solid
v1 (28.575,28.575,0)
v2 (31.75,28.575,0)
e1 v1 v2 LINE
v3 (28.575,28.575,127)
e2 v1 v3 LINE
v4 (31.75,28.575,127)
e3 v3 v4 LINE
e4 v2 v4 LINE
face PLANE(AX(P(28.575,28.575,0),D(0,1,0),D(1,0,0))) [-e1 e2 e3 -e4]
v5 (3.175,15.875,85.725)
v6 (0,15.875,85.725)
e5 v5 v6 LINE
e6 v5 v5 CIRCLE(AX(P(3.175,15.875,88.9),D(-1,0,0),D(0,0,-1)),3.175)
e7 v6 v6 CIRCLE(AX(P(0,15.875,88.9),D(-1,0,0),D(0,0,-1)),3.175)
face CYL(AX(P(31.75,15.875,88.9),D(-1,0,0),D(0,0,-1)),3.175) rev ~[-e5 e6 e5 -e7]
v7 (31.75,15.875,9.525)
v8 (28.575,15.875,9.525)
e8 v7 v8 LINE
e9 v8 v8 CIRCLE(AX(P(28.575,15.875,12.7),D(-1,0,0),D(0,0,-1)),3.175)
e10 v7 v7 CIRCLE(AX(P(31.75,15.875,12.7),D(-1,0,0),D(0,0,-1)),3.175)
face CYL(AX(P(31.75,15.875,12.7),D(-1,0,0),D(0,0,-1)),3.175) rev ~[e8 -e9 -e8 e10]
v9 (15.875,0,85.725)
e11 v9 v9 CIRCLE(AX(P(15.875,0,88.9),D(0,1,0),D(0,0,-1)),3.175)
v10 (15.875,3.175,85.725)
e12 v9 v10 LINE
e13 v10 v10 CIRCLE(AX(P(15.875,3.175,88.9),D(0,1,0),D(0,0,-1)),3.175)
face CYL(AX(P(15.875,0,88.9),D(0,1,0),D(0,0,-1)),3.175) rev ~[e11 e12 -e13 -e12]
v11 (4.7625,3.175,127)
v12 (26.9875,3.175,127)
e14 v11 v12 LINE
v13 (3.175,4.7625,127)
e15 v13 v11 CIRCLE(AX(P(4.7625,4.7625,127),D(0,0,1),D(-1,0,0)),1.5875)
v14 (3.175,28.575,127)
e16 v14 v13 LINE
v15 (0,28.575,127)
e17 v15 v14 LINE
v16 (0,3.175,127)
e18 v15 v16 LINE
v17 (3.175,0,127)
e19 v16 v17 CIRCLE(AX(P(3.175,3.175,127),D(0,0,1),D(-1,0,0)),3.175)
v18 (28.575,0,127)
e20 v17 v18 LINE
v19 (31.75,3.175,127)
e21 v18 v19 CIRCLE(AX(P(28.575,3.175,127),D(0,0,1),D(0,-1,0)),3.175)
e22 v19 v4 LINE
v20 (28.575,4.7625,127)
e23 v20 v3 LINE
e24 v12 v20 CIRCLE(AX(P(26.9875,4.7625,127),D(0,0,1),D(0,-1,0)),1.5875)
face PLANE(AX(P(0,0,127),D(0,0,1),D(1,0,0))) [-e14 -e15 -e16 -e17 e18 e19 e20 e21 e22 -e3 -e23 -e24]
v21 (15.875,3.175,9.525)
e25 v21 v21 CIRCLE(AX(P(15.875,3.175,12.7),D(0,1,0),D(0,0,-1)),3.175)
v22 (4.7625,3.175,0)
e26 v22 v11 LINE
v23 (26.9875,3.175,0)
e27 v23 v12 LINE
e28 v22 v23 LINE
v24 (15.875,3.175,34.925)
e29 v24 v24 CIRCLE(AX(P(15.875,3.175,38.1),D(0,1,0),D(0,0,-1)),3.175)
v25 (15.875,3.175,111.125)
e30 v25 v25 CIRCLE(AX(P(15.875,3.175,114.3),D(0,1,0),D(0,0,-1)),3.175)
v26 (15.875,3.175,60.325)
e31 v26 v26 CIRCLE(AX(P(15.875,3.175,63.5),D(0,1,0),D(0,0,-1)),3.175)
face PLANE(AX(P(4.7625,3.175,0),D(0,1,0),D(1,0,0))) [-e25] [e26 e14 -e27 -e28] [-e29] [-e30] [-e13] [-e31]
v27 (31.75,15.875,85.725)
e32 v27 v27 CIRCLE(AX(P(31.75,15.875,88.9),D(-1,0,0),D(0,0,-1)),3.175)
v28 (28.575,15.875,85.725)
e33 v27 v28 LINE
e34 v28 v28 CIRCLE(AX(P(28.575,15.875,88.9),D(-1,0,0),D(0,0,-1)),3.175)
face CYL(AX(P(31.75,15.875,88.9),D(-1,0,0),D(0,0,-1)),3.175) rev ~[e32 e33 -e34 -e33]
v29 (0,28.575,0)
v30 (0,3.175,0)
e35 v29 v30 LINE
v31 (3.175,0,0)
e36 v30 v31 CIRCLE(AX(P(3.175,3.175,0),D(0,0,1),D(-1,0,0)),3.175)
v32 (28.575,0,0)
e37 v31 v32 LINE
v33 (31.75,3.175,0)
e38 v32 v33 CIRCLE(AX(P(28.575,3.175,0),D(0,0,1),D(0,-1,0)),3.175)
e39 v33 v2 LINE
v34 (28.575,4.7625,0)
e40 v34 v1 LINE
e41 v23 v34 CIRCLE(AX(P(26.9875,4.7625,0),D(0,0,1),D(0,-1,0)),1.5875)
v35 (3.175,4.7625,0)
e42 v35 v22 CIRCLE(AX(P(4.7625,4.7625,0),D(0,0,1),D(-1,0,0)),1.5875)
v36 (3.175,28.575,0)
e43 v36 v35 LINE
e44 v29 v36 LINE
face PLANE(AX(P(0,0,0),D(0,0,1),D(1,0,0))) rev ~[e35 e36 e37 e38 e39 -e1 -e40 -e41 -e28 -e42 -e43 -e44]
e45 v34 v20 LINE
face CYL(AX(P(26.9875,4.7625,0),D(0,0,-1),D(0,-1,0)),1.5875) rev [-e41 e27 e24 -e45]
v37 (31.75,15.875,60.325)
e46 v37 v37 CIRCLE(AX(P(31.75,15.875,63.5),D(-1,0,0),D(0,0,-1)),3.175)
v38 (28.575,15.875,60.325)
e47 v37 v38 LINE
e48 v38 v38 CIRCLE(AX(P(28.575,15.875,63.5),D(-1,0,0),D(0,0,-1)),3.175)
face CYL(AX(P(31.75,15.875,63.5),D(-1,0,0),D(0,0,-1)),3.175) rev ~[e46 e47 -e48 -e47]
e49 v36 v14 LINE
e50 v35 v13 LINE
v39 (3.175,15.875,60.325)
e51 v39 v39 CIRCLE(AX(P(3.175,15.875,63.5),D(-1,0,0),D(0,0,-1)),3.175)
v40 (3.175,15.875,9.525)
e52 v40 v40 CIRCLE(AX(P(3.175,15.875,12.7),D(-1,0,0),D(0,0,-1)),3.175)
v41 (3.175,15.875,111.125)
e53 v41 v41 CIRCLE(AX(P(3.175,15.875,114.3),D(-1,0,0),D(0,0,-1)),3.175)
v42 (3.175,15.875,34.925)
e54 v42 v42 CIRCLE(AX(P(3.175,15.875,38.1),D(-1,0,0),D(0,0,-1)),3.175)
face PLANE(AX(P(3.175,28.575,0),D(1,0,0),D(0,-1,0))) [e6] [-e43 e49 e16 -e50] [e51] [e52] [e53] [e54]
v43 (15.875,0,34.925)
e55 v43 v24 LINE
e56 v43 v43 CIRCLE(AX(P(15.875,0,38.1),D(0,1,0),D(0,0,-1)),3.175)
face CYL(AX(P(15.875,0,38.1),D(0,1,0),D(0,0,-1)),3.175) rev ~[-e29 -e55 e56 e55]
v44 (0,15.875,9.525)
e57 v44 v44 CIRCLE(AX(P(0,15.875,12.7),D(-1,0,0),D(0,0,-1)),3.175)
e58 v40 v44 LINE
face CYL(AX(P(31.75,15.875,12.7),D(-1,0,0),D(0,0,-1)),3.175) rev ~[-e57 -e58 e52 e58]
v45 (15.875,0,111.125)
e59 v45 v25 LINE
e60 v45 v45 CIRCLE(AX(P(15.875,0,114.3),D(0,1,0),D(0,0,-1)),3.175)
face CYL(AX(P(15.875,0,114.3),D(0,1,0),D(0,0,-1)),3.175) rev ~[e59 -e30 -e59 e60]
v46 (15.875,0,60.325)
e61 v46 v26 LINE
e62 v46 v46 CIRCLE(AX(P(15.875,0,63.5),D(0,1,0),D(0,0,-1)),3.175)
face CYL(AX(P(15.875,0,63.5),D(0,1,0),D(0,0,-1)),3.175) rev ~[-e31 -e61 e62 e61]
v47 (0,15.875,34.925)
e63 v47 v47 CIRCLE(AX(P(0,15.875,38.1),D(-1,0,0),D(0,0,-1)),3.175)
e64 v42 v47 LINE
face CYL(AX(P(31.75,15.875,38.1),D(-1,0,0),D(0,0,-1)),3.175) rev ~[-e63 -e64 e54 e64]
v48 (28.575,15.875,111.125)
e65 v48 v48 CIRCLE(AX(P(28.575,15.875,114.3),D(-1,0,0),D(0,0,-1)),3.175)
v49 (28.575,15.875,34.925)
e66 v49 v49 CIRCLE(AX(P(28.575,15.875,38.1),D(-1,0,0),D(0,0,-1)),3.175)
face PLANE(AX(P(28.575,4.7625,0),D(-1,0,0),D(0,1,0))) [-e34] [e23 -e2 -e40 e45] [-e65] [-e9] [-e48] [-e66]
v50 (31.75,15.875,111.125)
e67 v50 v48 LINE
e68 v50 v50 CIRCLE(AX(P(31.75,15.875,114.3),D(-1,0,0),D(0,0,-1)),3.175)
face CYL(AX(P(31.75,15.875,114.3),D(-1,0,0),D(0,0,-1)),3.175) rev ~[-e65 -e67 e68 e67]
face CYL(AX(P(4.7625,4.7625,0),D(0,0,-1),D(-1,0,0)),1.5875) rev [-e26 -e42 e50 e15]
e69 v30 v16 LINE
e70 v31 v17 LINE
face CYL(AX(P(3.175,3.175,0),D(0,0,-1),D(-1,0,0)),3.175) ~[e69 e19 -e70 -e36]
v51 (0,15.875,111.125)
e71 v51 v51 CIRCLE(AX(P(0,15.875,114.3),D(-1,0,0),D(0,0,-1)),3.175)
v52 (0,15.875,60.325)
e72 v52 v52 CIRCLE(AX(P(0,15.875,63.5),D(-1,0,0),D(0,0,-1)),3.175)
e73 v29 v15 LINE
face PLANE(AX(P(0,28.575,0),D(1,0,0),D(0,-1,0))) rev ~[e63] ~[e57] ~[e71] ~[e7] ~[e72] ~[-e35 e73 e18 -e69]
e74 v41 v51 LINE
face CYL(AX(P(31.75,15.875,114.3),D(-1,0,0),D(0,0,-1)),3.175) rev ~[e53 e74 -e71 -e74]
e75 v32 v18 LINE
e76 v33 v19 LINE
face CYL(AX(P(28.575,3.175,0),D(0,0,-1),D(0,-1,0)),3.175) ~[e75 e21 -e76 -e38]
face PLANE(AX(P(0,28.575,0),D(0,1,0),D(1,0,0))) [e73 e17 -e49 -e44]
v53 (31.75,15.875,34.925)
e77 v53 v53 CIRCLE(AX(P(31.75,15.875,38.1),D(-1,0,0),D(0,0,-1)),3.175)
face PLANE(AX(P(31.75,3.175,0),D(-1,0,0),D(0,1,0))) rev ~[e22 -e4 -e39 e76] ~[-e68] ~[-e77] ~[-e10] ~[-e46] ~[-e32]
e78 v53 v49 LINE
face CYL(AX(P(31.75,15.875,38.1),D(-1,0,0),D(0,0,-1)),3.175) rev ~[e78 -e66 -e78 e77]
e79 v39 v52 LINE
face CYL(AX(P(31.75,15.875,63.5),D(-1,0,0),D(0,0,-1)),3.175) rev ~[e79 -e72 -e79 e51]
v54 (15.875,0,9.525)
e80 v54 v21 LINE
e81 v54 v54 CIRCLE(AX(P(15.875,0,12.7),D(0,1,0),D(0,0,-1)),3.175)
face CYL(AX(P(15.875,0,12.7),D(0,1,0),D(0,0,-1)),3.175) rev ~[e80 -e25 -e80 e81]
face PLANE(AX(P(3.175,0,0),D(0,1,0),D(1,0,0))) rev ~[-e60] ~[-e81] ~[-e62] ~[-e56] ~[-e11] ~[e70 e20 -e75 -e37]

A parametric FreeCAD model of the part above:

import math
import FreeCAD as App
import Part
import Sketcher
Q = App.Units.Quantity

doc = App.newDocument("Part")
body = doc.addObject("PartDesign::Body", "Body")

sketch1 = body.newObject("Sketcher::SketchObject", "Sketch")
sketch1.AttachmentSupport = (doc.getObject("XY_Plane"), [""])
sketch1.MapMode = "FlatFace"
sketch1.addGeometry([
    Part.ArcOfCircle(Part.Circle(App.Vector(3.2, 3.2, 0), App.Vector(0, 0, 1), 3.2), math.radians(180), math.radians(270)),
    Part.LineSegment(App.Vector(3.2, 0, 0), App.Vector(28.6, 0, 0)),
    Part.ArcOfCircle(Part.Circle(App.Vector(28.6, 3.2, 0), App.Vector(0, 0, 1), 3.2), math.radians(-90), math.radians(0)),
    Part.LineSegment(App.Vector(31.8, 3.2, 0), App.Vector(31.8, 28.6, 0)),
    Part.LineSegment(App.Vector(31.8, 28.6, 0), App.Vector(28.6, 28.6, 0)),
    Part.LineSegment(App.Vector(28.6, 28.6, 0), App.Vector(28.6, 4.8, 0)),
    Part.ArcOfCircle(Part.Circle(App.Vector(27, 4.8, 0), App.Vector(0, 0, 1), 1.6), math.radians(-90), math.radians(0)),
    Part.LineSegment(App.Vector(27, 3.2, 0), App.Vector(4.8, 3.2, 0)),
    Part.ArcOfCircle(Part.Circle(App.Vector(4.8, 4.8, 0), App.Vector(0, 0, 1), 1.6), math.radians(180), math.radians(270)),
    Part.LineSegment(App.Vector(3.2, 4.8, 0), App.Vector(3.2, 28.6, 0)),
    Part.LineSegment(App.Vector(3.2, 28.6, 0), App.Vector(0, 28.6, 0)),
    Part.LineSegment(App.Vector(0, 28.6, 0), App.Vector(0, 3.2, 0)),
], False)
sketch1.addConstraint([
    Sketcher.Constraint("Tangent", 0, 2, 1, 1),
    Sketcher.Constraint("Tangent", 1, 2, 2, 1),
    Sketcher.Constraint("Tangent", 2, 2, 3, 1),
    Sketcher.Constraint("Coincident", 3, 2, 4, 1),
    Sketcher.Constraint("Coincident", 4, 2, 5, 1),
    Sketcher.Constraint("Tangent", 5, 2, 6, 2),
    Sketcher.Constraint("Tangent", 6, 1, 7, 1),
    Sketcher.Constraint("Tangent", 7, 2, 8, 2),
    Sketcher.Constraint("Tangent", 8, 1, 9, 1),
    Sketcher.Constraint("Coincident", 9, 2, 10, 1),
    Sketcher.Constraint("Coincident", 10, 2, 11, 1),
    Sketcher.Constraint("Tangent", 11, 2, 0, 1),
    Sketcher.Constraint("Horizontal", 1),
    Sketcher.Constraint("Vertical", 3),
    Sketcher.Constraint("Horizontal", 4),
    Sketcher.Constraint("Vertical", 5),
    Sketcher.Constraint("Horizontal", 7),
    Sketcher.Constraint("Vertical", 9),
    Sketcher.Constraint("Horizontal", 10),
    Sketcher.Constraint("Vertical", 11),
    Sketcher.Constraint("Equal", 0, 2),
    Sketcher.Constraint("Equal", 6, 8),
    Sketcher.Constraint("PointOnObject", 0, 2, -1),
    Sketcher.Constraint("PointOnObject", 10, 2, -2),
    Sketcher.Constraint("Horizontal", 2, 2, 6, 1),
    Sketcher.Constraint("Horizontal", 4, 2, 9, 2),
    Sketcher.Constraint("Vertical", 1, 2, 4, 2),
    Sketcher.Constraint("Vertical", 0, 2, 8, 1),
    Sketcher.Constraint("Equal", 1, 3),
    Sketcher.Constraint("Radius", 0, Q("0.125 in")),
    Sketcher.Constraint("Radius", 6, Q("0.0625 in")),
    Sketcher.Constraint("DistanceX", 1, 1, 1, 2, Q("1 in")),
])
pad1 = body.newObject("PartDesign::Pad", "Pad")
pad1.Profile = sketch1
pad1.Length = Q("5 in")

sketch2 = body.newObject("Sketcher::SketchObject", "Sketch001")
sketch2.AttachmentSupport = (doc.getObject("YZ_Plane"), [""])
sketch2.MapMode = "FlatFace"
sketch2.AttachmentOffset = App.Placement(App.Vector(0, 0, 1.25 * 25.4), App.Rotation())
sketch2.addGeometry(Part.Circle(App.Vector(15.9, 114.3, 0), App.Vector(0, 0, 1), 3.2), False)
sketch2.addConstraint([
    Sketcher.Constraint("Diameter", 0, Q("0.25 in")),
    Sketcher.Constraint("DistanceY", -1, 1, 0, 3, Q("4.5 in")),
    Sketcher.Constraint("DistanceX", -1, 1, 0, 3, Q("0.625 in")),
])
doc.recompute()
hole = body.newObject("PartDesign::Hole", "Hole")
hole.Profile = sketch2
hole.ThreadType = "None"
hole.Diameter = Q("0.25 in")
hole.DepthType = "ThroughAll"

sketch3 = body.newObject("Sketcher::SketchObject", "Sketch002")
sketch3.AttachmentSupport = (doc.getObject("XZ_Plane"), [""])
sketch3.MapMode = "FlatFace"
sketch3.addGeometry(Part.Circle(App.Vector(15.9, 114.3, 0), App.Vector(0, 0, 1), 3.2), False)
sketch3.addConstraint([
    Sketcher.Constraint("Diameter", 0, Q("0.25 in")),
    Sketcher.Constraint("DistanceY", -1, 1, 0, 3, Q("4.5 in")),
    Sketcher.Constraint("DistanceX", -1, 1, 0, 3, Q("0.625 in")),
])
doc.recompute()
hole2 = body.newObject("PartDesign::Hole", "Hole001")
hole2.Profile = sketch3
hole2.ThreadType = "None"
hole2.Diameter = Q("0.25 in")
hole2.DepthType = "ThroughAll"
doc.recompute()

linearpattern = body.newObject("PartDesign::LinearPattern", "LinearPattern")
linearpattern.Originals = [hole, hole2]
linearpattern.Direction = (doc.getObject("Z_Axis"), [""])
linearpattern.Mode = "offset"
linearpattern.Offset = Q("1 in")
linearpattern.Occurrences = 5
linearpattern.Reversed = True
body.Tip = linearpattern

doc.recompute()
